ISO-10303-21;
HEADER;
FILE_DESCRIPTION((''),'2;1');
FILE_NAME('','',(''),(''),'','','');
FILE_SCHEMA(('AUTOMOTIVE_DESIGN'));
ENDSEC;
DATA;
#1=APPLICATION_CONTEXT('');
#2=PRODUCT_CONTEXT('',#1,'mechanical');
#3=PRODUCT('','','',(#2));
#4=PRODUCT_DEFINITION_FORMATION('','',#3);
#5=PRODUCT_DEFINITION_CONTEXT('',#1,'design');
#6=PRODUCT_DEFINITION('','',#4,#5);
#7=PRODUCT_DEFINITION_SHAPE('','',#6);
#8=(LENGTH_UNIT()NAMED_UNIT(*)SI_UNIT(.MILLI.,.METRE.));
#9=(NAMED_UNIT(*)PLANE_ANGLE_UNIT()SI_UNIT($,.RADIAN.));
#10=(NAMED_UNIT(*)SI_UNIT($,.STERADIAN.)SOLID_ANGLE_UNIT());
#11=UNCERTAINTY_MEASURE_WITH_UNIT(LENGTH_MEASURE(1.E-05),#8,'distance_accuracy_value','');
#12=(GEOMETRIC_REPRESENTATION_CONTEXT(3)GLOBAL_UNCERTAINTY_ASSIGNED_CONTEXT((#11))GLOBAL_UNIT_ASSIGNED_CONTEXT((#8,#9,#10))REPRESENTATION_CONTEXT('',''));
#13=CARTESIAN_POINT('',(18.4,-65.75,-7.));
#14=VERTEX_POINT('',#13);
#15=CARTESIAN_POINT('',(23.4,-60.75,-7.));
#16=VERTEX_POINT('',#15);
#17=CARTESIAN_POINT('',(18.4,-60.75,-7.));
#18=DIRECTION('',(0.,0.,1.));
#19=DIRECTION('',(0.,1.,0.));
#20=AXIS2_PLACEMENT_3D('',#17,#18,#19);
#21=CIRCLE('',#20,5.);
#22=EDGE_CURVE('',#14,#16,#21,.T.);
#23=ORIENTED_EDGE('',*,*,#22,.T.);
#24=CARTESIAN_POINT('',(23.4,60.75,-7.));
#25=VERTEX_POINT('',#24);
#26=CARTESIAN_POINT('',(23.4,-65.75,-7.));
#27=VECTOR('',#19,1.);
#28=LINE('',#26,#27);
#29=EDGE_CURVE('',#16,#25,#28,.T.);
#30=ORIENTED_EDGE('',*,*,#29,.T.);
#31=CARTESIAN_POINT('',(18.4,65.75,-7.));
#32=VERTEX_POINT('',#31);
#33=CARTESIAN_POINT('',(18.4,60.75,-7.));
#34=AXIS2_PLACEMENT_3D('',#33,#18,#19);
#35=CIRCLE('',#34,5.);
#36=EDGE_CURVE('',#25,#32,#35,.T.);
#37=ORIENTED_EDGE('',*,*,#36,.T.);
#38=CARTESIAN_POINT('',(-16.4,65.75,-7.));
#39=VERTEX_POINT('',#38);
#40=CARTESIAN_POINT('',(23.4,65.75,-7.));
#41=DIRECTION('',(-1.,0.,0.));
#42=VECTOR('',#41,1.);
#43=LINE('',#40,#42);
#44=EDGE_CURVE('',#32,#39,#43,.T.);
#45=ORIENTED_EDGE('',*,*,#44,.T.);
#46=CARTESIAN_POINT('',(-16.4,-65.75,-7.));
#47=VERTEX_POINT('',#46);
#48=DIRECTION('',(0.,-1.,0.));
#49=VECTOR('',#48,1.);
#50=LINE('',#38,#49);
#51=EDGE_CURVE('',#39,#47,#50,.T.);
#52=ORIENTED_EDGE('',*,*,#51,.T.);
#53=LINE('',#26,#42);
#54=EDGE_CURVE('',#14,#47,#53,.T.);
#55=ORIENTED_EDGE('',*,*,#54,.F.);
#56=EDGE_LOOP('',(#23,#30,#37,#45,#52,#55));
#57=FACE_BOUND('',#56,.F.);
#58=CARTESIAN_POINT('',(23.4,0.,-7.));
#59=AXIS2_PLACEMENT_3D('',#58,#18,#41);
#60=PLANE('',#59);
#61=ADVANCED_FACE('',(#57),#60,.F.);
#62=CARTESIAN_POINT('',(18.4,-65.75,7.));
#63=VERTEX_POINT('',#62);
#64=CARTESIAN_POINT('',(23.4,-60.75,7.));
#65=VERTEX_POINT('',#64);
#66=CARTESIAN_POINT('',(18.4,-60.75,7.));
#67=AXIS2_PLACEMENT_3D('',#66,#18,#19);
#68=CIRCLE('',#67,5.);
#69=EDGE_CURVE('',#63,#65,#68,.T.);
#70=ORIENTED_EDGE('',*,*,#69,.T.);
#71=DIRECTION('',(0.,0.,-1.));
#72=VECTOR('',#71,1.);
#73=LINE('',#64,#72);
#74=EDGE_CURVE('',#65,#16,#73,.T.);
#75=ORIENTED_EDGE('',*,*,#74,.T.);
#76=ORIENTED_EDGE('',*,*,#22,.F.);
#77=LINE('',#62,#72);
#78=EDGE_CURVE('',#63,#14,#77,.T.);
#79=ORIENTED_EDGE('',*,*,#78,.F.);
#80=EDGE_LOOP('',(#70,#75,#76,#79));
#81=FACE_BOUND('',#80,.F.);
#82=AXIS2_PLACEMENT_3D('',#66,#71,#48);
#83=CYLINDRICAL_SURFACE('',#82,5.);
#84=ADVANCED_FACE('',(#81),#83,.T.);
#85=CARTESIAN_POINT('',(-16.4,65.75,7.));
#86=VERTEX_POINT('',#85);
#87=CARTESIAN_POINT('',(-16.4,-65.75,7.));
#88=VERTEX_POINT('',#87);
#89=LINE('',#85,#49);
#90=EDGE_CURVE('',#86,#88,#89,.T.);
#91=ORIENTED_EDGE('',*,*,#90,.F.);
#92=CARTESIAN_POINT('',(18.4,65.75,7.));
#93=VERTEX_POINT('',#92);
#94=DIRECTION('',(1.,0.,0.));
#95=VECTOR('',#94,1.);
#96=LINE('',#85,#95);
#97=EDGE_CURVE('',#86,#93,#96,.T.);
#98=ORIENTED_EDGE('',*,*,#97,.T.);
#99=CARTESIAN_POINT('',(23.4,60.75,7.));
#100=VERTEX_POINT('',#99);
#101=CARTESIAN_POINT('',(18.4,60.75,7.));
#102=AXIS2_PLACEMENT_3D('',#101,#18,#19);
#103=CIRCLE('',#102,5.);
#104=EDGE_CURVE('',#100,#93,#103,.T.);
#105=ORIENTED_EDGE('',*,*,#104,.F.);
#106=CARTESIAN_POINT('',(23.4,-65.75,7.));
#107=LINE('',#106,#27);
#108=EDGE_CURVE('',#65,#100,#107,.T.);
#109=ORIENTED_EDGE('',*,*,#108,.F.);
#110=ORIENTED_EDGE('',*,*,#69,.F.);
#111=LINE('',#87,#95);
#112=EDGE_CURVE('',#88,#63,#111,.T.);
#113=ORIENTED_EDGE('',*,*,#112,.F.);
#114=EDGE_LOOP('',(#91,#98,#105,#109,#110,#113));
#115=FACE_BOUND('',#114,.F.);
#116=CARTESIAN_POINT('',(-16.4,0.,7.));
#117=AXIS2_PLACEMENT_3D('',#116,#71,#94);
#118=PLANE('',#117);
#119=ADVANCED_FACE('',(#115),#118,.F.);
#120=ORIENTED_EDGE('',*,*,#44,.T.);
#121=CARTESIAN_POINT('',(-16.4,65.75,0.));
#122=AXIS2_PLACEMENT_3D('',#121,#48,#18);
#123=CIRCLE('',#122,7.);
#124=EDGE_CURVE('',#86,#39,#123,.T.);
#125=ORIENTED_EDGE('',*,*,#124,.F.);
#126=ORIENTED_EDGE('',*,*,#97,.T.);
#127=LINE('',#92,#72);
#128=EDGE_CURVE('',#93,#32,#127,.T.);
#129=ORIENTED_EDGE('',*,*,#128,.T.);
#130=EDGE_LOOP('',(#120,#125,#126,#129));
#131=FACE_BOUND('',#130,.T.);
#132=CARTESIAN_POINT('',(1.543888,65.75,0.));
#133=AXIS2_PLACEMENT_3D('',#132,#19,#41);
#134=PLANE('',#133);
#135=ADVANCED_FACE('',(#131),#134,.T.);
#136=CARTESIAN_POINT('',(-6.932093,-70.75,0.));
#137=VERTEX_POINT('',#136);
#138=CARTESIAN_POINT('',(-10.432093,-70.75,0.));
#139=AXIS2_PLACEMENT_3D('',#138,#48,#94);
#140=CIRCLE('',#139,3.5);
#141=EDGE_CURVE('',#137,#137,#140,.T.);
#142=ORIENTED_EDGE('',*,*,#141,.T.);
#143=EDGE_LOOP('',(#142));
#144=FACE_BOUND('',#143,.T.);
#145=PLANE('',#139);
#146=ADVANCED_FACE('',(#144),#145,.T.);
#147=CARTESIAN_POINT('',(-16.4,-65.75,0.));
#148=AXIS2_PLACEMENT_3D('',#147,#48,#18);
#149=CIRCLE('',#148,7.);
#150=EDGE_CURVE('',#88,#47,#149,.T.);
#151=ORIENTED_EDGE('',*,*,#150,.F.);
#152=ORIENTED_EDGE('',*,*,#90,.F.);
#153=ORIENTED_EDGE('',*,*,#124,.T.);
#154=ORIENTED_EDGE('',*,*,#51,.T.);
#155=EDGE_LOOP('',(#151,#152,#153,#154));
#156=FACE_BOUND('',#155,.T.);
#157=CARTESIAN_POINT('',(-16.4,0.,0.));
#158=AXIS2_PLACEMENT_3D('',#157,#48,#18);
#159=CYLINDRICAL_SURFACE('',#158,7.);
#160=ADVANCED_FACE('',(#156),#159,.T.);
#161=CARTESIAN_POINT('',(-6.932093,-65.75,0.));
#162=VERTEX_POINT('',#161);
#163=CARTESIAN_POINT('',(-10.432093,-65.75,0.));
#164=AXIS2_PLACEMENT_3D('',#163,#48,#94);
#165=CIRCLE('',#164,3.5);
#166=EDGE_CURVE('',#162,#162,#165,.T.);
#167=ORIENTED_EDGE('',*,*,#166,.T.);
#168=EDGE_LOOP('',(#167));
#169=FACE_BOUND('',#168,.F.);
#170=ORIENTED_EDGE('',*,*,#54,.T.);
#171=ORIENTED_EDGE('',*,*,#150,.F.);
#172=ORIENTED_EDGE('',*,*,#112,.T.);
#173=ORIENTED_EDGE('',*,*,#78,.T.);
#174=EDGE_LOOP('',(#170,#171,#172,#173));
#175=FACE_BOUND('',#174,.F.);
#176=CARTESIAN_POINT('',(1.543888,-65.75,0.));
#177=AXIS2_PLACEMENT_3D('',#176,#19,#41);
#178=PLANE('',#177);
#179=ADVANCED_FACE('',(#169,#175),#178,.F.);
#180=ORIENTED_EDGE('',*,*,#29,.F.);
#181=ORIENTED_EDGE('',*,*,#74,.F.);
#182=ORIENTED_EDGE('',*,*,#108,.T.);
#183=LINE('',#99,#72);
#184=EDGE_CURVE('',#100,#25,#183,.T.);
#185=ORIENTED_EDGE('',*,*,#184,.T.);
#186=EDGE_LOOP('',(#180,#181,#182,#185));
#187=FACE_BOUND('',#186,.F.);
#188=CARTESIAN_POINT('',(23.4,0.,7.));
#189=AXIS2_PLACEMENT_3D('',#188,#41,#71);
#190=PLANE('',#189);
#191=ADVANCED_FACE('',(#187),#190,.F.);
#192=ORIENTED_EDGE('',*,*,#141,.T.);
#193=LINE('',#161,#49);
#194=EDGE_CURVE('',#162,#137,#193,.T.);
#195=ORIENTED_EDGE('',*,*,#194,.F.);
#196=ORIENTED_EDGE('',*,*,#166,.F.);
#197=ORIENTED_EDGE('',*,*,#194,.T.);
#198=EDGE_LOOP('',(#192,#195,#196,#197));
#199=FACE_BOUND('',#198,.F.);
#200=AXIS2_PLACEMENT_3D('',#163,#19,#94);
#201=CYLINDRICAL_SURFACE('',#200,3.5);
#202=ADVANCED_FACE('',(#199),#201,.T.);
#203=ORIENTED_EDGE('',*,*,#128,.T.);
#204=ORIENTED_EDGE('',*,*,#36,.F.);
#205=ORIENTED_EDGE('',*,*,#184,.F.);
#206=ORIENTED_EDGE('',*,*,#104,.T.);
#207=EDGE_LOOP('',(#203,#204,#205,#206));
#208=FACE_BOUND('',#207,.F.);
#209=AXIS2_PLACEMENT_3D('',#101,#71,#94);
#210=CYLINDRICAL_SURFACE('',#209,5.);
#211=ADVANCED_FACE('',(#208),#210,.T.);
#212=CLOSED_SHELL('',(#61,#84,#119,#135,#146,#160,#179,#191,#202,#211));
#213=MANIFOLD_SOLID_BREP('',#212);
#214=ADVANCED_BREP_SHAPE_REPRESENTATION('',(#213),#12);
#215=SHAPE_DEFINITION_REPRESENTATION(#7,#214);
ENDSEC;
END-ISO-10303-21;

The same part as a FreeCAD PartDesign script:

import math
import FreeCAD as App
import Part
import Sketcher


def edges_at(feature, points):
    """Names of the edges that pass closest to the given points."""
    edges = feature.Shape.Edges
    near = lambda p: min(range(len(edges)), key=lambda i: edges[i].distToShape(Part.Vertex(*p))[0])
    return sorted({f"Edge{near(p) + 1}" for p in points})

doc = App.newDocument("Part")
body = doc.addObject("PartDesign::Body", "Body")

sketch1 = body.newObject("Sketcher::SketchObject", "Sketch")
sketch1.AttachmentSupport = (doc.getObject("XZ_Plane"), [""])
sketch1.MapMode = "FlatFace"
sketch1.addGeometry(Part.LineSegment(App.Vector(23.4, 7, 0), App.Vector(-16.4, 7, 0)), False)
sketch1.addGeometry(Part.ArcOfCircle(Part.Circle(App.Vector(-16.4, 0, 0), App.Vector(0, 0, 1), 7), math.radians(90), math.radians(270)), False)
sketch1.addGeometry(Part.LineSegment(App.Vector(-16.4, -7, 0), App.Vector(23.4, -7, 0)), False)
sketch1.addGeometry(Part.LineSegment(App.Vector(23.4, -7, 0), App.Vector(23.4, 7, 0)), False)
sketch1.addConstraint(Sketcher.Constraint("Tangent", 0, 2, 1, 1))
sketch1.addConstraint(Sketcher.Constraint("Tangent", 1, 2, 2, 1))
sketch1.addConstraint(Sketcher.Constraint("Coincident", 2, 2, 3, 1))
sketch1.addConstraint(Sketcher.Constraint("Coincident", 3, 2, 0, 1))
sketch1.addConstraint(Sketcher.Constraint("Horizontal", 0))
sketch1.addConstraint(Sketcher.Constraint("Horizontal", 2))
sketch1.addConstraint(Sketcher.Constraint("Vertical", 3))
sketch1.addConstraint(Sketcher.Constraint("PointOnObject", 1, 3, -1))
sketch1.addConstraint(Sketcher.Constraint("Radius", 1, 7.0))
sketch1.addConstraint(Sketcher.Constraint("DistanceX", 0, 2, 0, 1, 39.8))
sketch1.addConstraint(Sketcher.Constraint("DistanceX", 1, 3, -1, 1, 16.4))
pad1 = body.newObject("PartDesign::Pad", "Pad")
pad1.Profile = sketch1
pad1.Length = 131.5
pad1.Midplane = True
doc.recompute()

fillet = body.newObject("PartDesign::Fillet", "Fillet")
fillet.Base = (pad1, edges_at(pad1, [(23.4, -65.75, 0), (23.4, 65.75, 0)]))
fillet.Radius = 5

sketch2 = body.newObject("Sketcher::SketchObject", "Sketch001")
sketch2.AttachmentSupport = (doc.getObject("XZ_Plane"), [""])
sketch2.MapMode = "FlatFace"
sketch2.AttachmentOffset = App.Placement(App.Vector(0, 0, 65.75), App.Rotation())
sketch2.addGeometry(Part.Circle(App.Vector(-10.432093, 0, 0), App.Vector(0, 0, 1), 3.5), False)
sketch2.addConstraint(Sketcher.Constraint("PointOnObject", 0, 3, -1))
sketch2.addConstraint(Sketcher.Constraint("Diameter", 0, 7.0))
sketch2.addConstraint(Sketcher.Constraint("DistanceX", 0, 3, -1, 1, 10.432093))
pad2 = body.newObject("PartDesign::Pad", "Pad001")
pad2.Profile = sketch2
pad2.Length = 5

doc.recompute()
